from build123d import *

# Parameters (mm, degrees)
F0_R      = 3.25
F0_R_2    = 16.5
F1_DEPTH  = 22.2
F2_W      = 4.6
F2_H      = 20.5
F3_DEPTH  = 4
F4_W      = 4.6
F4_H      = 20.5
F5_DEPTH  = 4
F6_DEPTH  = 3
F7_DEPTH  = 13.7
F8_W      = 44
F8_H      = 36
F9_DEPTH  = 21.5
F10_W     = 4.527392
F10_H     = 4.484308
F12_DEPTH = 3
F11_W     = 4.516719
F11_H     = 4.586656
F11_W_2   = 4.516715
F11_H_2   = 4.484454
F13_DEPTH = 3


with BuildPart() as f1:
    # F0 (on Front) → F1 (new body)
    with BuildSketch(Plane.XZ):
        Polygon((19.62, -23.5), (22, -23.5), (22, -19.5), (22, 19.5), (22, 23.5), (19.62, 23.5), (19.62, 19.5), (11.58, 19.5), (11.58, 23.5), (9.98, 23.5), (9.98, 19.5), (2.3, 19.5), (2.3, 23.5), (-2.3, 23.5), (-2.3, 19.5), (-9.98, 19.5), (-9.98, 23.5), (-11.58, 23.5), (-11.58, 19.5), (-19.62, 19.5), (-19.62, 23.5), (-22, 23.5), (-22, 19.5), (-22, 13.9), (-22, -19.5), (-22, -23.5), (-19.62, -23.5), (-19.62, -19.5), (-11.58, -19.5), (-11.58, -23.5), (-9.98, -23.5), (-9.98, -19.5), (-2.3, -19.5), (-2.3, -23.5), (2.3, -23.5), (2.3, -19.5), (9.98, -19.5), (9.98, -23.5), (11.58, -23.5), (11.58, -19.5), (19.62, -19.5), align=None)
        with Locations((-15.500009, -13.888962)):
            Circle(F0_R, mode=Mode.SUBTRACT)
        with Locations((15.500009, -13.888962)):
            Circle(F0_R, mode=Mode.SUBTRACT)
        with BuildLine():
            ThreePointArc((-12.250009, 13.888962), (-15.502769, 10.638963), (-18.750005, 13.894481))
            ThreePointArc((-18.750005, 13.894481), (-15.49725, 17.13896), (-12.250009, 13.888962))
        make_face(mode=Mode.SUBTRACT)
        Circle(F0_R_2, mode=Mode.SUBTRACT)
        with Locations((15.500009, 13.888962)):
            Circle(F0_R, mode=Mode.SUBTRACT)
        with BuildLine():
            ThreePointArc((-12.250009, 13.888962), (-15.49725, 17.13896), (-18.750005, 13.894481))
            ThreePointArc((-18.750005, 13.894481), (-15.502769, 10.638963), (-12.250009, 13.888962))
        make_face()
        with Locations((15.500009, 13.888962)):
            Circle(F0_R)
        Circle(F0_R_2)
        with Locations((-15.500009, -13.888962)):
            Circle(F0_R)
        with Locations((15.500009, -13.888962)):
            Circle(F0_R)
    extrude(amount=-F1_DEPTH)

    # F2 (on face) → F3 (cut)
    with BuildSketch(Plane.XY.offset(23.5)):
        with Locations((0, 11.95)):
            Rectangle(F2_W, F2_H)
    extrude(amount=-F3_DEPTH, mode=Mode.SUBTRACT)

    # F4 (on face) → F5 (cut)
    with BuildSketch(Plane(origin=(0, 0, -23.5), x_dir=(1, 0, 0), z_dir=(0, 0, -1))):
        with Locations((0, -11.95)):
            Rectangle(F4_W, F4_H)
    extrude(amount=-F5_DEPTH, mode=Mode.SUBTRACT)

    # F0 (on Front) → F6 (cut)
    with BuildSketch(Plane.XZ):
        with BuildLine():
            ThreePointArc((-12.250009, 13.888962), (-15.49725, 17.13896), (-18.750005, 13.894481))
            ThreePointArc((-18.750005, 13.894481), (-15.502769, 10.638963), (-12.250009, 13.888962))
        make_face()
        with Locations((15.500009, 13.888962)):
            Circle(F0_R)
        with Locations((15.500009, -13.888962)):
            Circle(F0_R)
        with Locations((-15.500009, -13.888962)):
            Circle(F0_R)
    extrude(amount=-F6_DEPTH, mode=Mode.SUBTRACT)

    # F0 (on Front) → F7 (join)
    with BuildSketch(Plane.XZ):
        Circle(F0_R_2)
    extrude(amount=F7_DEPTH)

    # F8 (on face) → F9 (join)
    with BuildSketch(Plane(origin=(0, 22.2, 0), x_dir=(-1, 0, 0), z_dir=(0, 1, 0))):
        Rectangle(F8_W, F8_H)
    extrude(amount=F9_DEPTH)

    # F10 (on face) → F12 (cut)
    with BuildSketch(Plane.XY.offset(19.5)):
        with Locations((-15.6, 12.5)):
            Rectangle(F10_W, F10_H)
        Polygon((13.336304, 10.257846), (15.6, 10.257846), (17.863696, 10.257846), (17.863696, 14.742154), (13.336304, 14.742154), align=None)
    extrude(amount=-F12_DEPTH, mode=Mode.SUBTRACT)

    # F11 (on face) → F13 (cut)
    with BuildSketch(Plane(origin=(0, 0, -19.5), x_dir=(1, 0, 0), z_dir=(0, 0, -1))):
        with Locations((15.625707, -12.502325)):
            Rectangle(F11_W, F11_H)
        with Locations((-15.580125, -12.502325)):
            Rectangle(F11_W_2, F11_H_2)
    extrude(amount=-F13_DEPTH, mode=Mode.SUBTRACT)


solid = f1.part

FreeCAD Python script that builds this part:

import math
import FreeCAD as App
import Part
import Sketcher

V = App.Vector
Q = App.Units.Quantity


def add_polygon(sketch, points):
    """Adds a closed chain of lines whose ends are joined by coincident constraints."""
    first, n = sketch.GeometryCount, len(points)
    for a, b in zip(points, points[1:] + points[:1]):
        sketch.addGeometry(Part.LineSegment(App.Vector(*a, 0), App.Vector(*b, 0)), False)
    for i in range(n):
        sketch.addConstraint(Sketcher.Constraint("Coincident", first + i, 2, first + (i + 1) % n, 1))

doc = App.newDocument("Part")
params = doc.addObject("Spreadsheet::Sheet", "Params")
for row, (alias, value) in enumerate([
    ("sketch1_height", "47 mm"),
    ("sketch1_height2", "4 mm"),
    ("sketch1_width", "1.6 mm"),
    ("sketch1_width2", "4.6 mm"),
    ("sketch1_width3", "2.38 mm"),
    ("pad1_length", "22.2 mm"),
    ("sketch2_width", "4.6 mm"),
    ("sketch2_height", "20.5 mm"),
    ("pocket1_length", "4 mm"),
    ("sketch3_width", "4.6 mm"),
    ("sketch3_height", "20.5 mm"),
    ("pocket2_length", "4 mm"),
    ("sketch4_diameter", "6.5 mm"),
    ("pocket3_length", "3 mm"),
    ("sketch5_diameter", "33 mm"),
    ("pad2_length", "13.7 mm"),
    ("sketch6_width", "44 mm"),
    ("sketch6_height", "36 mm"),
    ("pad3_length", "21.5 mm"),
    ("pocket4_length", "3 mm"),
    ("pocket5_length", "3 mm"),
], start=1):
    params.set(f"A{row}", alias)
    params.set(f"B{row}", "=" + value)
    params.setAlias(f"B{row}", alias)

body = doc.addObject("PartDesign::Body", "Body")

# Sketch on XZ plane
sketch1 = doc.addObject("Sketcher::SketchObject", "Sketch")
body.addObject(sketch1)
sketch1.AttachmentSupport = (doc.XZ_Plane, [""])
sketch1.MapMode = "FlatFace"
add_polygon(sketch1, [(19.6, -23.5), (22, -23.5), (22, 23.5), (19.6, 23.5), (19.6, 19.5), (11.6, 19.5), (11.6, 23.5), (10, 23.5), (10, 19.5), (2.3, 19.5), (2.3, 23.5), (-2.3, 23.5), (-2.3, 19.5), (-10, 19.5), (-10, 23.5), (-11.6, 23.5), (-11.6, 19.5), (-19.6, 19.5), (-19.6, 23.5), (-22, 23.5), (-22, -23.5), (-19.6, -23.5), (-19.6, -19.5), (-11.6, -19.5), (-11.6, -23.5), (-10, -23.5), (-10, -19.5), (-2.3, -19.5), (-2.3, -23.5), (2.3, -23.5), (2.3, -19.5), (10, -19.5), (10, -23.5), (11.6, -23.5), (11.6, -19.5), (19.6, -19.5)])  # lines 0-35
sketch1.addConstraint(Sketcher.Constraint("Horizontal", 0))
sketch1.addConstraint(Sketcher.Constraint("Vertical", 1))
sketch1.addConstraint(Sketcher.Constraint("Horizontal", 2))
sketch1.addConstraint(Sketcher.Constraint("Vertical", 3))
sketch1.addConstraint(Sketcher.Constraint("Horizontal", 4))
sketch1.addConstraint(Sketcher.Constraint("Vertical", 5))
sketch1.addConstraint(Sketcher.Constraint("Horizontal", 6))
sketch1.addConstraint(Sketcher.Constraint("Vertical", 7))
sketch1.addConstraint(Sketcher.Constraint("Horizontal", 8))
sketch1.addConstraint(Sketcher.Constraint("Vertical", 9))
sketch1.addConstraint(Sketcher.Constraint("Horizontal", 10))
sketch1.addConstraint(Sketcher.Constraint("Vertical", 11))
sketch1.addConstraint(Sketcher.Constraint("Horizontal", 12))
sketch1.addConstraint(Sketcher.Constraint("Vertical", 13))
sketch1.addConstraint(Sketcher.Constraint("Horizontal", 14))
sketch1.addConstraint(Sketcher.Constraint("Vertical", 15))
sketch1.addConstraint(Sketcher.Constraint("Horizontal", 16))
sketch1.addConstraint(Sketcher.Constraint("Vertical", 17))
sketch1.addConstraint(Sketcher.Constraint("Horizontal", 18))
sketch1.addConstraint(Sketcher.Constraint("Vertical", 19))
sketch1.addConstraint(Sketcher.Constraint("Horizontal", 20))
sketch1.addConstraint(Sketcher.Constraint("Vertical", 21))
sketch1.addConstraint(Sketcher.Constraint("Horizontal", 22))
sketch1.addConstraint(Sketcher.Constraint("Vertical", 23))
sketch1.addConstraint(Sketcher.Constraint("Horizontal", 24))
sketch1.addConstraint(Sketcher.Constraint("Vertical", 25))
sketch1.addConstraint(Sketcher.Constraint("Horizontal", 26))
sketch1.addConstraint(Sketcher.Constraint("Vertical", 27))
sketch1.addConstraint(Sketcher.Constraint("Horizontal", 28))
sketch1.addConstraint(Sketcher.Constraint("Vertical", 29))
sketch1.addConstraint(Sketcher.Constraint("Horizontal", 30))
sketch1.addConstraint(Sketcher.Constraint("Vertical", 31))
sketch1.addConstraint(Sketcher.Constraint("Horizontal", 32))
sketch1.addConstraint(Sketcher.Constraint("Vertical", 33))
sketch1.addConstraint(Sketcher.Constraint("Horizontal", 34))
sketch1.addConstraint(Sketcher.Constraint("Vertical", 35))
sketch1.addConstraint(Sketcher.Constraint("Symmetric", 0, 2, 18, 2, -1, 1))
sketch1.addConstraint(Sketcher.Constraint("Symmetric", 2, 2, 20, 2, -1, 1))
sketch1.addConstraint(Sketcher.Constraint("Symmetric", 4, 2, 22, 2, -1, 1))
sketch1.addConstraint(Sketcher.Constraint("Symmetric", 6, 2, 24, 2, -1, 1))
sketch1.addConstraint(Sketcher.Constraint("Symmetric", 8, 2, 26, 2, -1, 1))
sketch1.addConstraint(Sketcher.Constraint("Symmetric", 10, 2, 28, 2, -1, 1))
sketch1.addConstraint(Sketcher.Constraint("Symmetric", 12, 2, 30, 2, -1, 1))
sketch1.addConstraint(Sketcher.Constraint("Symmetric", 14, 2, 32, 2, -1, 1))
sketch1.addConstraint(Sketcher.Constraint("Symmetric", 16, 2, 34, 2, -1, 1))
sketch1.addConstraint(Sketcher.Constraint("Symmetric", 8, 2, 11, 2, -2))
sketch1.addConstraint(Sketcher.Constraint("Symmetric", 6, 2, 13, 2, -2))
sketch1.addConstraint(Sketcher.Constraint("Symmetric", 4, 2, 15, 2, -2))
sketch1.addConstraint(Sketcher.Constraint("Symmetric", 2, 2, 17, 2, -2))
sketch1.addConstraint(Sketcher.Constraint("Horizontal", 2, 2, 5, 2))
sketch1.addConstraint(Sketcher.Constraint("Horizontal", 4, 2, 7, 2))
sketch1.addConstraint(Sketcher.Constraint("Horizontal", 6, 2, 9, 2))
sketch1.addConstraint(Sketcher.Constraint("DistanceY", 1, 1, 1, 2, Q("47 mm")))
sketch1.addConstraint(Sketcher.Constraint("DistanceY", 3, 2, 3, 1, Q("4 mm")))
sketch1.addConstraint(Sketcher.Constraint("DistanceX", 6, 2, 6, 1, Q("1.6 mm")))
sketch1.addConstraint(Sketcher.Constraint("DistanceX", 10, 2, 10, 1, Q("4.6 mm")))
sketch1.addConstraint(Sketcher.Constraint("DistanceX", -1, 1, 0, 2, Q("22 mm")))
sketch1.addConstraint(Sketcher.Constraint("DistanceX", 0, 1, 0, 2, Q("2.38 mm")))
sketch1.addConstraint(Sketcher.Constraint("DistanceX", 4, 2, 4, 1, Q("8.04 mm")))
sketch1.setExpression("Constraints[88]", "Params.sketch1_height")
sketch1.setExpression("Constraints[89]", "Params.sketch1_height2")
sketch1.setExpression("Constraints[90]", "Params.sketch1_width")
sketch1.setExpression("Constraints[91]", "Params.sketch1_width2")
sketch1.setExpression("Constraints[93]", "Params.sketch1_width3")
pad1 = doc.addObject("PartDesign::Pad", "Pad")
body.addObject(pad1)
pad1.Profile = sketch1
pad1.setExpression("Length", "Params.pad1_length")
pad1.Reversed = True

# Sketch on XY plane
sketch2 = doc.addObject("Sketcher::SketchObject", "Sketch001")
body.addObject(sketch2)
sketch2.AttachmentSupport = (doc.XY_Plane, [""])
sketch2.MapMode = "FlatFace"
sketch2.AttachmentOffset = App.Placement(V(0, 0, 23.5), App.Rotation())
add_polygon(sketch2, [(-2.3, 22.2), (-2.3, 1.7), (2.3, 1.7), (2.3, 22.2)])  # lines 0-3
sketch2.addConstraint(Sketcher.Constraint("Vertical", 0))
sketch2.addConstraint(Sketcher.Constraint("Horizontal", 1))
sketch2.addConstraint(Sketcher.Constraint("Vertical", 2))
sketch2.addConstraint(Sketcher.Constraint("Horizontal", 3))
sketch2.addConstraint(Sketcher.Constraint("DistanceX", 1, 1, 1, 2, Q("4.6 mm")))
sketch2.addConstraint(Sketcher.Constraint("DistanceY", 0, 2, 0, 1, Q("20.5 mm")))
sketch2.addConstraint(Sketcher.Constraint("DistanceX", 0, 2, -1, 1, Q("2.3 mm")))
sketch2.addConstraint(Sketcher.Constraint("DistanceY", -1, 1, 0, 2, Q("1.7 mm")))
sketch2.setExpression("Constraints[8]", "Params.sketch2_width")
sketch2.setExpression("Constraints[9]", "Params.sketch2_height")
pocket1 = doc.addObject("PartDesign::Pocket", "Pocket")
body.addObject(pocket1)
pocket1.Profile = sketch2
pocket1.setExpression("Length", "Params.pocket1_length")

# Sketch on XY plane
sketch3 = doc.addObject("Sketcher::SketchObject", "Sketch002")
body.addObject(sketch3)
sketch3.AttachmentSupport = (doc.XY_Plane, [""])
sketch3.MapMode = "FlatFace"
sketch3.AttachmentOffset = App.Placement(V(0, 0, -23.5), App.Rotation())
add_polygon(sketch3, [(-2.3, 1.7), (-2.3, 22.2), (2.3, 22.2), (2.3, 1.7)])  # lines 0-3
sketch3.addConstraint(Sketcher.Constraint("Vertical", 0))
sketch3.addConstraint(Sketcher.Constraint("Horizontal", 1))
sketch3.addConstraint(Sketcher.Constraint("Vertical", 2))
sketch3.addConstraint(Sketcher.Constraint("Horizontal", 3))
sketch3.addConstraint(Sketcher.Constraint("DistanceX", 1, 1, 1, 2, Q("4.6 mm")))
sketch3.addConstraint(Sketcher.Constraint("DistanceY", 0, 1, 0, 2, Q("20.5 mm")))
sketch3.addConstraint(Sketcher.Constraint("DistanceX", 0, 2, -1, 1, Q("2.3 mm")))
sketch3.addConstraint(Sketcher.Constraint("DistanceY", -1, 1, 0, 2, Q("22.2 mm")))
sketch3.setExpression("Constraints[8]", "Params.sketch3_width")
sketch3.setExpression("Constraints[9]", "Params.sketch3_height")
pocket2 = doc.addObject("PartDesign::Pocket", "Pocket001")
body.addObject(pocket2)
pocket2.Profile = sketch3
pocket2.setExpression("Length", "Params.pocket2_length")
pocket2.Reversed = True

# Sketch on XZ plane
sketch4 = doc.addObject("Sketcher::SketchObject", "Sketch003")
body.addObject(sketch4)
sketch4.AttachmentSupport = (doc.XZ_Plane, [""])
sketch4.MapMode = "FlatFace"
sketch4.addGeometry(Part.ArcOfCircle(Part.Circle(V(-15.5, 13.9, 0), V(0, 0, 1), 3.3), math.radians(0), math.radians(180)), False)
sketch4.addGeometry(Part.ArcOfCircle(Part.Circle(V(-15.5, 13.9, 0), V(0, 0, 1), 3.3), math.radians(180), math.radians(360)), False)
sketch4.addGeometry(Part.Circle(V(15.5, 13.9, 0), V(0, 0, 1), 3.2), False)
sketch4.addGeometry(Part.Circle(V(15.5, -13.9, 0), V(0, 0, 1), 3.2), False)
sketch4.addGeometry(Part.Circle(V(-15.5, -13.9, 0), V(0, 0, 1), 3.2), False)
sketch4.addConstraint(Sketcher.Constraint("Tangent", 0, 1, 1, 2))
sketch4.addConstraint(Sketcher.Constraint("Coincident", 1, 1, 0, 2))
sketch4.addConstraint(Sketcher.Constraint("Equal", 1, 2))
sketch4.addConstraint(Sketcher.Constraint("Equal", 2, 3))
sketch4.addConstraint(Sketcher.Constraint("Equal", 3, 4))
sketch4.addConstraint(Sketcher.Constraint("Symmetric", 0, 3, 3, 3, -1, 1))
sketch4.addConstraint(Sketcher.Constraint("Symmetric", 2, 3, 4, 3, -1, 1))
sketch4.addConstraint(Sketcher.Constraint("Symmetric", 0, 3, 2, 3, -2))
sketch4.addConstraint(Sketcher.Constraint("Horizontal", 2, 3, 0, 1))
sketch4.addConstraint(Sketcher.Constraint("Diameter", 2, Q("6.5 mm")))
sketch4.addConstraint(Sketcher.Constraint("DistanceX", 0, 3, -1, 1, Q("15.500009 mm")))
sketch4.addConstraint(Sketcher.Constraint("DistanceY", -1, 1, 0, 3, Q("13.888961 mm")))
sketch4.addConstraint(Sketcher.Constraint("DistanceY", -1, 1, 1, 1, Q("13.894481 mm")))
sketch4.setExpression("Constraints[9]", "Params.sketch4_diameter")
pocket3 = doc.addObject("PartDesign::Pocket", "Pocket002")
body.addObject(pocket3)
pocket3.Profile = sketch4
pocket3.setExpression("Length", "Params.pocket3_length")

# Sketch on XZ plane
sketch5 = doc.addObject("Sketcher::SketchObject", "Sketch004")
body.addObject(sketch5)
sketch5.AttachmentSupport = (doc.XZ_Plane, [""])
sketch5.MapMode = "FlatFace"
sketch5.addGeometry(Part.Circle(V(0, 0, 0), V(0, 0, 1), 16), False)
sketch5.addConstraint(Sketcher.Constraint("Coincident", 0, 3, -1, 1))
sketch5.addConstraint(Sketcher.Constraint("Diameter", 0, Q("33 mm")))
sketch5.setExpression("Constraints[1]", "Params.sketch5_diameter")
pad2 = doc.addObject("PartDesign::Pad", "Pad001")
body.addObject(pad2)
pad2.Profile = sketch5
pad2.setExpression("Length", "Params.pad2_length")

# Sketch on XZ plane
sketch6 = doc.addObject("Sketcher::SketchObject", "Sketch005")
body.addObject(sketch6)
sketch6.AttachmentSupport = (doc.XZ_Plane, [""])
sketch6.MapMode = "FlatFace"
sketch6.AttachmentOffset = App.Placement(V(0, 0, -22.2), App.Rotation())
add_polygon(sketch6, [(22, 18), (22, -18), (-22, -18), (-22, 18)])  # lines 0-3
sketch6.addConstraint(Sketcher.Constraint("Vertical", 0))
sketch6.addConstraint(Sketcher.Constraint("Horizontal", 1))
sketch6.addConstraint(Sketcher.Constraint("Vertical", 2))
sketch6.addConstraint(Sketcher.Constraint("Horizontal", 3))
sketch6.addConstraint(Sketcher.Constraint("Symmetric", 0, 2, 2, 2, -1, 1))
sketch6.addConstraint(Sketcher.Constraint("DistanceX", 1, 2, 1, 1, Q("44 mm")))
sketch6.addConstraint(Sketcher.Constraint("DistanceY", 0, 2, 0, 1, Q("36 mm")))
sketch6.setExpression("Constraints[9]", "Params.sketch6_width")
sketch6.setExpression("Constraints[10]", "Params.sketch6_height")
pad3 = doc.addObject("PartDesign::Pad", "Pad002")
body.addObject(pad3)
pad3.Profile = sketch6
pad3.setExpression("Length", "Params.pad3_length")
pad3.Reversed = True

# Sketch on XY plane
sketch7 = doc.addObject("Sketcher::SketchObject", "Sketch006")
body.addObject(sketch7)
sketch7.AttachmentSupport = (doc.XY_Plane, [""])
sketch7.MapMode = "FlatFace"
sketch7.AttachmentOffset = App.Placement(V(0, 0, 19.5), App.Rotation())
add_polygon(sketch7, [(-17.9, 14.7), (-17.9, 10.3), (-13.3, 10.3), (-13.3, 14.7)])  # lines 0-3
add_polygon(sketch7, [(13.3, 10.3), (17.9, 10.3), (17.9, 14.7), (13.3, 14.7)])  # lines 4-7
sketch7.addConstraint(Sketcher.Constraint("Vertical", 0))
sketch7.addConstraint(Sketcher.Constraint("Horizontal", 1))
sketch7.addConstraint(Sketcher.Constraint("Vertical", 2))
sketch7.addConstraint(Sketcher.Constraint("Horizontal", 3))
sketch7.addConstraint(Sketcher.Constraint("Horizontal", 4))
sketch7.addConstraint(Sketcher.Constraint("Vertical", 5))
sketch7.addConstraint(Sketcher.Constraint("Horizontal", 6))
sketch7.addConstraint(Sketcher.Constraint("Vertical", 7))
sketch7.addConstraint(Sketcher.Constraint("Symmetric", 0, 2, 4, 2, -2))
sketch7.addConstraint(Sketcher.Constraint("Symmetric", 2, 2, 6, 2, -2))
sketch7.addConstraint(Sketcher.Constraint("DistanceX", 1, 2, 4, 2, Q("31.2 mm")))
sketch7.addConstraint(Sketcher.Constraint("DistanceX", 1, 1, 1, 2, Q("4.527392 mm")))
sketch7.addConstraint(Sketcher.Constraint("DistanceY", 0, 2, 0, 1, Q("4.484308 mm")))
sketch7.addConstraint(Sketcher.Constraint("DistanceY", -1, 1, 0, 2, Q("10.257846 mm")))
pocket4 = doc.addObject("PartDesign::Pocket", "Pocket003")
body.addObject(pocket4)
pocket4.Profile = sketch7
pocket4.setExpression("Length", "Params.pocket4_length")

# Sketch on XY plane
sketch8 = doc.addObject("Sketcher::SketchObject", "Sketch007")
body.addObject(sketch8)
sketch8.AttachmentSupport = (doc.XY_Plane, [""])
sketch8.MapMode = "FlatFace"
sketch8.AttachmentOffset = App.Placement(V(0, 0, -19.5), App.Rotation())
add_polygon(sketch8, [(13.4, 10.2), (13.4, 14.8), (17.9, 14.8), (17.9, 10.2)])  # lines 0-3
add_polygon(sketch8, [(-17.8, 10.3), (-17.8, 14.7), (-13.3, 14.7), (-13.3, 10.3)])  # lines 4-7
sketch8.addConstraint(Sketcher.Constraint("Vertical", 0))
sketch8.addConstraint(Sketcher.Constraint("Horizontal", 1))
sketch8.addConstraint(Sketcher.Constraint("Vertical", 2))
sketch8.addConstraint(Sketcher.Constraint("Horizontal", 3))
sketch8.addConstraint(Sketcher.Constraint("Vertical", 4))
sketch8.addConstraint(Sketcher.Constraint("Horizontal", 5))
sketch8.addConstraint(Sketcher.Constraint("Vertical", 6))
sketch8.addConstraint(Sketcher.Constraint("Horizontal", 7))
sketch8.addConstraint(Sketcher.Constraint("DistanceX", 1, 1, 1, 2, Q("4.516719 mm")))
sketch8.addConstraint(Sketcher.Constraint("DistanceY", 4, 2, 0, 2, Q("0.051101 mm")))
sketch8.addConstraint(Sketcher.Constraint("DistanceY", 3, 2, 6, 2, Q("0.051101 mm")))
sketch8.addConstraint(Sketcher.Constraint("DistanceX", 5, 1, 5, 2, Q("4.516715 mm")))
sketch8.addConstraint(Sketcher.Constraint("DistanceY", 0, 1, 0, 2, Q("4.586656 mm")))
sketch8.addConstraint(Sketcher.Constraint("DistanceX", 4, 2, 0, 2, Q("31.20583 mm")))
sketch8.addConstraint(Sketcher.Constraint("DistanceX", -1, 1, 0, 2, Q("13.367347 mm")))
sketch8.addConstraint(Sketcher.Constraint("DistanceY", -1, 1, 0, 2, Q("14.795653 mm")))
pocket5 = doc.addObject("PartDesign::Pocket", "Pocket004")
body.addObject(pocket5)
pocket5.Profile = sketch8
pocket5.setExpression("Length", "Params.pocket5_length")
pocket5.Reversed = True

doc.recompute()
